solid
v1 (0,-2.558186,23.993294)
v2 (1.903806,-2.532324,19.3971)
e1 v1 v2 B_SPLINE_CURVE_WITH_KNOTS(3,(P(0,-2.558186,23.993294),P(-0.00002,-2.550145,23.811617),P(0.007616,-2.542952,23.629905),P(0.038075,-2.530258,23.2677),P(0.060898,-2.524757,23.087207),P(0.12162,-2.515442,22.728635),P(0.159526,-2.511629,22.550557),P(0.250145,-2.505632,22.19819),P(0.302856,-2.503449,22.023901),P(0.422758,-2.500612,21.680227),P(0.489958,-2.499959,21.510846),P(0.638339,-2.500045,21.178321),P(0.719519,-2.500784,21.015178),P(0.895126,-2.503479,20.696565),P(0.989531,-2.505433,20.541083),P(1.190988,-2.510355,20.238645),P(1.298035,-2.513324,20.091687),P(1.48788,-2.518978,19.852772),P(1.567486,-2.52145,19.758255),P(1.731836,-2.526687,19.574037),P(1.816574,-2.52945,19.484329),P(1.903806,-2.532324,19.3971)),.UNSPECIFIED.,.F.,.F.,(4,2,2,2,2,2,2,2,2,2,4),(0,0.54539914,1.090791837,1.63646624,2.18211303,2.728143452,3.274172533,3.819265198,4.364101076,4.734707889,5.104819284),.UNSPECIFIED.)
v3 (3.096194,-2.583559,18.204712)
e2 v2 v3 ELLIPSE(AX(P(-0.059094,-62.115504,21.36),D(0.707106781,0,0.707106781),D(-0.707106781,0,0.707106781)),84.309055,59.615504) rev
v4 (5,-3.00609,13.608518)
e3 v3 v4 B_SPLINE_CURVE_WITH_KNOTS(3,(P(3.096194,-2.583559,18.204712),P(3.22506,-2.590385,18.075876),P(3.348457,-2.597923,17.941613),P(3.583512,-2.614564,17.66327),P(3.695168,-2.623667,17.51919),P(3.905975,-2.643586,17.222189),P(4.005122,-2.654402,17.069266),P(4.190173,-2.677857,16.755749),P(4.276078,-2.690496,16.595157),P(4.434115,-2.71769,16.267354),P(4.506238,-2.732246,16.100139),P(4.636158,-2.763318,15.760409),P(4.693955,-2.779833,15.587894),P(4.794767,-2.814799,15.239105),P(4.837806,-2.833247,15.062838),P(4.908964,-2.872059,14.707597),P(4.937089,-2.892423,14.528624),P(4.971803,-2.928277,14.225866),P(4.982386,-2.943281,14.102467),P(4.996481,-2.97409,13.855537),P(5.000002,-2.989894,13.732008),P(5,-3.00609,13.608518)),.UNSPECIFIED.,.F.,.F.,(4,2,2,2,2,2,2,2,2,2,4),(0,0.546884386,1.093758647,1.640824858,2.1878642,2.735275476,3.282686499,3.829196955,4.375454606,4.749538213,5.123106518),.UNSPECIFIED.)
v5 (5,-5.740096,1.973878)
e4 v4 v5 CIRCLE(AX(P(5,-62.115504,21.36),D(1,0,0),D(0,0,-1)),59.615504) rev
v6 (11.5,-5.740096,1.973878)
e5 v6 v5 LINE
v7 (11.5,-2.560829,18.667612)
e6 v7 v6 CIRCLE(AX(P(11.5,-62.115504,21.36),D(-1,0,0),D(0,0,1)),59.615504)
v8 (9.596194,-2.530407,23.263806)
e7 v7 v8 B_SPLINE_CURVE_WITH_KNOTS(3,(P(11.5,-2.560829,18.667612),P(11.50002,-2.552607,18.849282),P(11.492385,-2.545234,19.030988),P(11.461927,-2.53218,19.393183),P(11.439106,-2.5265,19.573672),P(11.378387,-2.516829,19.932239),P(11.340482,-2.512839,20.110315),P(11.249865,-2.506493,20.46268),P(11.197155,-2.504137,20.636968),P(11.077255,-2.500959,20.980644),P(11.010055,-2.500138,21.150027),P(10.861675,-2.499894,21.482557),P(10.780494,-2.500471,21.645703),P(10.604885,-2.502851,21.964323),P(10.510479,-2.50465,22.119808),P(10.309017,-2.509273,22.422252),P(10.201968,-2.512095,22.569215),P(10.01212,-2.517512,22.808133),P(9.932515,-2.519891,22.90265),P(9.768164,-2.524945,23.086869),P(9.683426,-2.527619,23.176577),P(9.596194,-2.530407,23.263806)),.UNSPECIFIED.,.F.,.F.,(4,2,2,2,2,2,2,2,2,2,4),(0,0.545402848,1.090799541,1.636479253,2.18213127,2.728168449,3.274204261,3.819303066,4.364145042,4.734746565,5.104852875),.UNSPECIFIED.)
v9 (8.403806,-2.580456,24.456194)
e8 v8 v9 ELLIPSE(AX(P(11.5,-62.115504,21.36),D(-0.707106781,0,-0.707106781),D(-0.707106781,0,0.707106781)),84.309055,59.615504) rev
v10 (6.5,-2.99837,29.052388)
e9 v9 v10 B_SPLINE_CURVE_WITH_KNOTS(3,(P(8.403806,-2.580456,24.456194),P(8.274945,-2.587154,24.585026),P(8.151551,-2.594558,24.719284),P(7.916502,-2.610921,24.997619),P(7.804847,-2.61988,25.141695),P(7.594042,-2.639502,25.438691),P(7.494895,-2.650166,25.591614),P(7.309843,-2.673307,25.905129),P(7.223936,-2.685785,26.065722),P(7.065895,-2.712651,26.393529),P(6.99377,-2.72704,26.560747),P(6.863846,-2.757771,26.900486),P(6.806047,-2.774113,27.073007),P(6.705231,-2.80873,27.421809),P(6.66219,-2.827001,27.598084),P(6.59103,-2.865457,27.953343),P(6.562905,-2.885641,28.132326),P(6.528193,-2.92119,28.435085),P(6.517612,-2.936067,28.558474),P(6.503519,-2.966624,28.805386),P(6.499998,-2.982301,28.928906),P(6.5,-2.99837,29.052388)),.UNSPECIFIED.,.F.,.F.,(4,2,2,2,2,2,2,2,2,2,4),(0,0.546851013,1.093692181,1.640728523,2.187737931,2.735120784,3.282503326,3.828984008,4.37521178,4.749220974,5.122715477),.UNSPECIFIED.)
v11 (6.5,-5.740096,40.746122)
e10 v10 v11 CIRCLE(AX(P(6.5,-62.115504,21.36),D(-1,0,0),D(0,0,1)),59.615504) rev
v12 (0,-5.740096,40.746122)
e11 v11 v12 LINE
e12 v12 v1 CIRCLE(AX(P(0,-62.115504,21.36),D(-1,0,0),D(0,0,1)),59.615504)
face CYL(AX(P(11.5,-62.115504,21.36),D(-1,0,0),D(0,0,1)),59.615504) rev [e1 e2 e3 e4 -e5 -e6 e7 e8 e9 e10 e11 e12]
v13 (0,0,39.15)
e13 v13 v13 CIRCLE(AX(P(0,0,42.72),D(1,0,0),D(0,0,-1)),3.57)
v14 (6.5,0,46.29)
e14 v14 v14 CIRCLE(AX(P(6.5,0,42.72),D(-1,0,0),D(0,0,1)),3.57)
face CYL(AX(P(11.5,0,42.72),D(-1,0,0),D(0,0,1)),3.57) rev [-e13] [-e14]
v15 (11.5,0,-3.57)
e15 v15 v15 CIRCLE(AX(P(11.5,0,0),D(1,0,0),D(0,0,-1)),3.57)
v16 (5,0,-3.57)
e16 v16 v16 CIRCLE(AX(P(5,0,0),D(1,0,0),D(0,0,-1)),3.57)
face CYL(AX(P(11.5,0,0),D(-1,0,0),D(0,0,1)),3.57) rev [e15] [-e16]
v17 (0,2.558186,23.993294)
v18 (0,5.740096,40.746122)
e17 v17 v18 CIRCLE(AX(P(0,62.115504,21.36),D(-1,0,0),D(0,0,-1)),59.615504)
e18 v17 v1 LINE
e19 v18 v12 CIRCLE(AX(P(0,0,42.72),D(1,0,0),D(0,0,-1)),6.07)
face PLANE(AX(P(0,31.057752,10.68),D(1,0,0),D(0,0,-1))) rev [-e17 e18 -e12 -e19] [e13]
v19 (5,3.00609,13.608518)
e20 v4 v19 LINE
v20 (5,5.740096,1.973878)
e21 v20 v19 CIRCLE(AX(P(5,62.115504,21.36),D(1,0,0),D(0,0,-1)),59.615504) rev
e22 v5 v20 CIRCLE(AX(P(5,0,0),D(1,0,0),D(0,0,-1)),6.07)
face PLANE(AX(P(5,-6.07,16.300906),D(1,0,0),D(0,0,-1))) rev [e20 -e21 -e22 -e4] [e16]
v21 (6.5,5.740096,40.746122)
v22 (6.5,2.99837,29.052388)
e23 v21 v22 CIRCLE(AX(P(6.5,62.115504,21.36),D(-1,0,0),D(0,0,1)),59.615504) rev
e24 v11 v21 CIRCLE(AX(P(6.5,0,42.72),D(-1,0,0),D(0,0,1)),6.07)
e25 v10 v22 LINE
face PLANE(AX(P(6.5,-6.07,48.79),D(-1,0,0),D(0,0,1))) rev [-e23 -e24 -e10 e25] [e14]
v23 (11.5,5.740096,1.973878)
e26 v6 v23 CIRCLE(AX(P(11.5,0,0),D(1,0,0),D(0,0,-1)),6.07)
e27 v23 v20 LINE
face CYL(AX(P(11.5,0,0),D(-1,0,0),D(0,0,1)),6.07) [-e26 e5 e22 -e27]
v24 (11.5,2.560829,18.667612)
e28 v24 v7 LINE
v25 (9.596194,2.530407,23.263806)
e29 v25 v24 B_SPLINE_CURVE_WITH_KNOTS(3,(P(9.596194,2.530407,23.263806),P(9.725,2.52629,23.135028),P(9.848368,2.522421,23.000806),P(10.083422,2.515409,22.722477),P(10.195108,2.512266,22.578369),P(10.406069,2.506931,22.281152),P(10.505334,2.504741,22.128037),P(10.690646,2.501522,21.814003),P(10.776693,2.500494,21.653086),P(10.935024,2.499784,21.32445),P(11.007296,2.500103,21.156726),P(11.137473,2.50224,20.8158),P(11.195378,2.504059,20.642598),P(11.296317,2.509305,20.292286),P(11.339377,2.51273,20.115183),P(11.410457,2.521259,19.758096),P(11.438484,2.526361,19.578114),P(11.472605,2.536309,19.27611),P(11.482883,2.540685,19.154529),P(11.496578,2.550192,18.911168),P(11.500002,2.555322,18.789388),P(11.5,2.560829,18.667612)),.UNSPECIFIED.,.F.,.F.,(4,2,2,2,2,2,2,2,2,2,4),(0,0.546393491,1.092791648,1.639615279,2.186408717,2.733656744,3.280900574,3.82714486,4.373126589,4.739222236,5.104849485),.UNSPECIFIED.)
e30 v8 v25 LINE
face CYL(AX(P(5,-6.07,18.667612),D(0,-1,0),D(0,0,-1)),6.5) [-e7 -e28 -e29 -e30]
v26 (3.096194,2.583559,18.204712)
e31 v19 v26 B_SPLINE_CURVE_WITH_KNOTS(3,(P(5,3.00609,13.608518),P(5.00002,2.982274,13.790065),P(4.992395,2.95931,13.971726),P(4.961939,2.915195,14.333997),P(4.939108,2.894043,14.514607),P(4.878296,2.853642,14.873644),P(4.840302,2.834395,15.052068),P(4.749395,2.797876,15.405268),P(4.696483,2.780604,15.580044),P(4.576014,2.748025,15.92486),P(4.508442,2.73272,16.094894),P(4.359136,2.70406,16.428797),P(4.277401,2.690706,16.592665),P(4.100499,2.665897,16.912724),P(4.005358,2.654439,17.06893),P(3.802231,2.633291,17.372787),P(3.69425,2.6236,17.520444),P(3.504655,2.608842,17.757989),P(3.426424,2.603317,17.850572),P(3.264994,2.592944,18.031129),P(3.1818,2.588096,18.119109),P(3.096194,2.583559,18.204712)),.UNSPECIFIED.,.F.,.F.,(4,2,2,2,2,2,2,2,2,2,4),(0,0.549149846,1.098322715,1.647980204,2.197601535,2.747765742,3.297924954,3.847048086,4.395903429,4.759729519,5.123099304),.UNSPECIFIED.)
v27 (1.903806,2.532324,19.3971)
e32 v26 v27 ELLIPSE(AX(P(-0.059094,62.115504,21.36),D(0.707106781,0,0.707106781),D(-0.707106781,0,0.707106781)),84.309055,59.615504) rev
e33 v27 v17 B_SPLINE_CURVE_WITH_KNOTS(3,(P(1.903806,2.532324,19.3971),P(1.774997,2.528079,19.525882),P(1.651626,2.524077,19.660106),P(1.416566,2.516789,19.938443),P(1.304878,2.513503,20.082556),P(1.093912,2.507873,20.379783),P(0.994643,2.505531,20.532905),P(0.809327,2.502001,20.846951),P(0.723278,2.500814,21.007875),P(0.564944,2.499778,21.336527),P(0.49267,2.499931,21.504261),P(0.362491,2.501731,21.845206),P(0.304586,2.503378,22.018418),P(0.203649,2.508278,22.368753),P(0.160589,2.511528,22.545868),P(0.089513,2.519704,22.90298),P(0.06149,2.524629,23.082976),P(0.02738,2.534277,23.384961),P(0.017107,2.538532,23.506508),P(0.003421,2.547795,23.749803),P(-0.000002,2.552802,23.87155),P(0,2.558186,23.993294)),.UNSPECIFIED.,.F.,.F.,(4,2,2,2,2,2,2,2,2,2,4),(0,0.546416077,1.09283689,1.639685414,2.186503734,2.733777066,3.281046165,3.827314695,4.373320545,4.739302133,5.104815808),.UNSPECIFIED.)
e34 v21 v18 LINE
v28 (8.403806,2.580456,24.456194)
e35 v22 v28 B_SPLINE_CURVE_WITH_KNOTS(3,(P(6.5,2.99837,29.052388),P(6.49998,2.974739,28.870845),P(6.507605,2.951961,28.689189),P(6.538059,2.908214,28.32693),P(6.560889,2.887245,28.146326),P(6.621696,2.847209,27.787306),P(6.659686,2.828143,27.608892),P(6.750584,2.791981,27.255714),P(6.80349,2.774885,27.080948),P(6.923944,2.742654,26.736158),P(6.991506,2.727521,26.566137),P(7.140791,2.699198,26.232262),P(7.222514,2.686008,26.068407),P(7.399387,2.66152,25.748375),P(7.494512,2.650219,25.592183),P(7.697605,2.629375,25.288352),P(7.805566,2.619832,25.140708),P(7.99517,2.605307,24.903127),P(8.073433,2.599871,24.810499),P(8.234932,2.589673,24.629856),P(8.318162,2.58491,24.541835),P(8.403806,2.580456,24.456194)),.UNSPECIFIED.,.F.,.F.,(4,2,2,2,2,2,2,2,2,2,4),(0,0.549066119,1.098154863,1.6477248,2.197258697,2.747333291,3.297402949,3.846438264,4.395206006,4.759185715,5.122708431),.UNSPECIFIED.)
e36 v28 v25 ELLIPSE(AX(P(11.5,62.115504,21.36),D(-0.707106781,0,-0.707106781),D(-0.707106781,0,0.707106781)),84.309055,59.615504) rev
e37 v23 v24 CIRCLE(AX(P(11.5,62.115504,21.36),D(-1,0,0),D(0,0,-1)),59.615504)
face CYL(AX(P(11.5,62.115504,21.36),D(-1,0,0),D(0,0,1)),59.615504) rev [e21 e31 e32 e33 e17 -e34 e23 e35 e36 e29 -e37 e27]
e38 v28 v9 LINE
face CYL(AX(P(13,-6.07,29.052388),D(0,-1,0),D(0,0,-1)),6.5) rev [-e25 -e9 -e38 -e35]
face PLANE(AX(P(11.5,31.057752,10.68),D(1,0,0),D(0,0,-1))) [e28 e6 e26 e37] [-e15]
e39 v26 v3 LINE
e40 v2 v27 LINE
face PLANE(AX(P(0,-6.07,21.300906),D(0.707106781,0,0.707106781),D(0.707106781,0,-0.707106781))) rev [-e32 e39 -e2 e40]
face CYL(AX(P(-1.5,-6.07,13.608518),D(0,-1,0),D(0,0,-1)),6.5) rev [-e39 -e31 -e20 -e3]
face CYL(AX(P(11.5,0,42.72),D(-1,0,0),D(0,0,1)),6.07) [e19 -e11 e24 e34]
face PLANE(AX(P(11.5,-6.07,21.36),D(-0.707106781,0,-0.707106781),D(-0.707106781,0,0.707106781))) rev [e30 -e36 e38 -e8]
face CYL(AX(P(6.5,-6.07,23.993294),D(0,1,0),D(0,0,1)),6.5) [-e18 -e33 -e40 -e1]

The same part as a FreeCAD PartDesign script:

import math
import FreeCAD as App
import Part
import Sketcher

V = App.Vector
Q = App.Units.Quantity


def edges_at(feature, points):
    """Names of the edges that pass closest to the given points."""
    edges = feature.Shape.Edges
    near = lambda p: min(range(len(edges)), key=lambda i: edges[i].distToShape(Part.Vertex(*p))[0])
    return sorted({f"Edge{near(p) + 1}" for p in points})


def add_polygon(sketch, points):
    """Adds a closed chain of lines whose ends are joined by coincident constraints."""
    first, n = sketch.GeometryCount, len(points)
    for a, b in zip(points, points[1:] + points[:1]):
        sketch.addGeometry(Part.LineSegment(App.Vector(*a, 0), App.Vector(*b, 0)), False)
    for i in range(n):
        sketch.addConstraint(Sketcher.Constraint("Coincident", first + i, 2, first + (i + 1) % n, 1))

doc = App.newDocument("Part")
params = doc.addObject("Spreadsheet::Sheet", "Params")
for row, (alias, value) in enumerate([
    ("sketch1_diameter", "7.14 mm"),
    ("sketch1_radius", "6.07 mm"),
    ("pad1_length", "11.5 mm"),
    ("sketch2_width", "5 mm"),
    ("sketch2_height", "27.43 mm"),
    ("fillet_radius", "6.5 mm"),
], start=1):
    params.set(f"A{row}", alias)
    params.set(f"B{row}", "=" + value)
    params.setAlias(f"B{row}", alias)

body = doc.addObject("PartDesign::Body", "Body")

# Sketch on YZ plane
sketch1 = body.newObject("Sketcher::SketchObject", "Sketch")
sketch1.AttachmentSupport = (doc.getObject("YZ_Plane"), [""])
sketch1.MapMode = "FlatFace"
sketch1.addGeometry([
    Part.ArcOfCircle(Part.Circle(V(0, 0, 0), V(0, 0, 1), 6.1), math.radians(161), math.radians(379)),  # 0
    Part.ArcOfCircle(Part.Circle(V(62.1, 21.4, 0), V(0, 0, 1), 59.6), math.radians(161), math.radians(199)),  # 1
    Part.ArcOfCircle(Part.Circle(V(0, 42.7, 0), V(0, 0, 1), 6.1), math.radians(-19), math.radians(199)),  # 2
    Part.ArcOfCircle(Part.Circle(V(-62.1, 21.4, 0), V(0, 0, 1), 59.6), math.radians(-19), math.radians(19)),  # 3
    Part.Circle(V(0, 42.7, 0), V(0, 0, 1), 3.6),  # 4
    Part.Circle(V(0, 0, 0), V(0, 0, 1), 3.6),  # 5
], False)
sketch1.addConstraint([
    Sketcher.Constraint("Tangent", 0, 2, 1, 2),
    Sketcher.Constraint("Tangent", 1, 1, 2, 1),
    Sketcher.Constraint("Tangent", 2, 2, 3, 2),
    Sketcher.Constraint("Tangent", 3, 1, 0, 1),
    Sketcher.Constraint("Coincident", 0, 3, -1, 1),
    Sketcher.Constraint("Coincident", 5, 3, -1, 1),
    Sketcher.Constraint("Coincident", 4, 3, 2, 3),
    Sketcher.Constraint("Equal", 0, 2),
    Sketcher.Constraint("Equal", 1, 3),
    Sketcher.Constraint("Equal", 4, 5),
    Sketcher.Constraint("PointOnObject", 2, 3, -2),
    Sketcher.Constraint("Diameter", 4, Q("7.14 mm")),
    Sketcher.Constraint("Radius", 0, Q("6.07 mm")),
    Sketcher.Constraint("DistanceY", -1, 1, 1, 3, Q("21.36 mm")),
    Sketcher.Constraint("Radius", 1, Q("59.615504 mm")),
])
sketch1.setExpression("Constraints[11]", "Params.sketch1_diameter")
sketch1.setExpression("Constraints[12]", "Params.sketch1_radius")
pad1 = body.newObject("PartDesign::Pad", "Pad")
pad1.Profile = sketch1
pad1.setExpression("Length", "Params.pad1_length")

# Sketch on XZ plane
sketch2 = body.newObject("Sketcher::SketchObject", "Sketch001")
sketch2.AttachmentSupport = (doc.getObject("XZ_Plane"), [""])
sketch2.MapMode = "FlatFace"
add_polygon(sketch2, [(6, 49), (12, 49), (12, 21), (6, 26)])  # lines 0-3
add_polygon(sketch2, [(5, 16), (5, -6), (0, -6), (0, 21)])  # lines 4-7
sketch2.addConstraint([
    Sketcher.Constraint("Horizontal", 0),
    Sketcher.Constraint("Vertical", 1),
    Sketcher.Constraint("Vertical", 3),
    Sketcher.Constraint("Vertical", 4),
    Sketcher.Constraint("Horizontal", 5),
    Sketcher.Constraint("Vertical", 6),
    Sketcher.Constraint("PointOnObject", 5, 2, -2),
    Sketcher.Constraint("Parallel", 2, 7),
    Sketcher.Constraint("Equal", 0, 5),
    Sketcher.Constraint("DistanceX", 0, 1, 0, 2, Q("5 mm")),
    Sketcher.Constraint("Angle", 2, Q("135 deg")),
    Sketcher.Constraint("DistanceY", 1, 2, 1, 1, Q("27.43 mm")),
    Sketcher.Constraint("DistanceX", -1, 1, 0, 2, Q("11.5 mm")),
    Sketcher.Constraint("DistanceY", -1, 1, 0, 2, Q("48.79 mm")),
    Sketcher.Constraint("DistanceY", 4, 2, -1, 1, Q("6.07 mm")),
    Sketcher.Constraint("DistanceY", 4, 2, 4, 1, Q("22.370906 mm")),
])
sketch2.setExpression("Constraints[17]", "Params.sketch2_width")
sketch2.setExpression("Constraints[19]", "Params.sketch2_height")
pocket1 = body.newObject("PartDesign::Pocket", "Pocket")
pocket1.Profile = sketch2
pocket1.Type = "ThroughAll"
pocket1.Midplane = True
doc.recompute()

fillet = body.newObject("PartDesign::Fillet", "Fillet")
fillet.Base = (pocket1, edges_at(pocket1, [
    (0, 0, 21.301),
    (5, 0, 16.301),
    (6.5, 0, 26.36),
    (11.5, 0, 21.36),
]))
fillet.setExpression("Radius", "Params.fillet_radius")

doc.recompute()
